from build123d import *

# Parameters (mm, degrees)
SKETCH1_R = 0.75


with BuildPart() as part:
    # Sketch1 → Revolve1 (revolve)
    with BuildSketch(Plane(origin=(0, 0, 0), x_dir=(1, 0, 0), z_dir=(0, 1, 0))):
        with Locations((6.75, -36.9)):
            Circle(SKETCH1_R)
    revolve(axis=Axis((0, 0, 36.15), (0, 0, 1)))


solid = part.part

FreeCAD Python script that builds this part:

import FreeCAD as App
import Part
import Sketcher

V = App.Vector

doc = App.newDocument("Part")
body = doc.addObject("PartDesign::Body", "Body")

# Sketch on XZ plane
sketch1 = body.newObject("Sketcher::SketchObject", "Sketch")
sketch1.AttachmentSupport = (doc.getObject("XZ_Plane"), [""])
sketch1.MapMode = "FlatFace"
sketch1.addGeometry(Part.Circle(V(6.8, 36.9, 0), V(0, 0, 1), 0.8), False)
sketch1.addConstraint([
    Sketcher.Constraint("Diameter", 0, 1.5),
    Sketcher.Constraint("DistanceY", -1, 1, 0, 3, 36.9),
    Sketcher.Constraint("DistanceX", -1, 1, 0, 3, 6.75),
])
revolution = body.newObject("PartDesign::Revolution", "Revolution")
revolution.Profile = sketch1
revolution.ReferenceAxis = (sketch1, ["V_Axis"])
revolution.Angle = 360

doc.recompute()
